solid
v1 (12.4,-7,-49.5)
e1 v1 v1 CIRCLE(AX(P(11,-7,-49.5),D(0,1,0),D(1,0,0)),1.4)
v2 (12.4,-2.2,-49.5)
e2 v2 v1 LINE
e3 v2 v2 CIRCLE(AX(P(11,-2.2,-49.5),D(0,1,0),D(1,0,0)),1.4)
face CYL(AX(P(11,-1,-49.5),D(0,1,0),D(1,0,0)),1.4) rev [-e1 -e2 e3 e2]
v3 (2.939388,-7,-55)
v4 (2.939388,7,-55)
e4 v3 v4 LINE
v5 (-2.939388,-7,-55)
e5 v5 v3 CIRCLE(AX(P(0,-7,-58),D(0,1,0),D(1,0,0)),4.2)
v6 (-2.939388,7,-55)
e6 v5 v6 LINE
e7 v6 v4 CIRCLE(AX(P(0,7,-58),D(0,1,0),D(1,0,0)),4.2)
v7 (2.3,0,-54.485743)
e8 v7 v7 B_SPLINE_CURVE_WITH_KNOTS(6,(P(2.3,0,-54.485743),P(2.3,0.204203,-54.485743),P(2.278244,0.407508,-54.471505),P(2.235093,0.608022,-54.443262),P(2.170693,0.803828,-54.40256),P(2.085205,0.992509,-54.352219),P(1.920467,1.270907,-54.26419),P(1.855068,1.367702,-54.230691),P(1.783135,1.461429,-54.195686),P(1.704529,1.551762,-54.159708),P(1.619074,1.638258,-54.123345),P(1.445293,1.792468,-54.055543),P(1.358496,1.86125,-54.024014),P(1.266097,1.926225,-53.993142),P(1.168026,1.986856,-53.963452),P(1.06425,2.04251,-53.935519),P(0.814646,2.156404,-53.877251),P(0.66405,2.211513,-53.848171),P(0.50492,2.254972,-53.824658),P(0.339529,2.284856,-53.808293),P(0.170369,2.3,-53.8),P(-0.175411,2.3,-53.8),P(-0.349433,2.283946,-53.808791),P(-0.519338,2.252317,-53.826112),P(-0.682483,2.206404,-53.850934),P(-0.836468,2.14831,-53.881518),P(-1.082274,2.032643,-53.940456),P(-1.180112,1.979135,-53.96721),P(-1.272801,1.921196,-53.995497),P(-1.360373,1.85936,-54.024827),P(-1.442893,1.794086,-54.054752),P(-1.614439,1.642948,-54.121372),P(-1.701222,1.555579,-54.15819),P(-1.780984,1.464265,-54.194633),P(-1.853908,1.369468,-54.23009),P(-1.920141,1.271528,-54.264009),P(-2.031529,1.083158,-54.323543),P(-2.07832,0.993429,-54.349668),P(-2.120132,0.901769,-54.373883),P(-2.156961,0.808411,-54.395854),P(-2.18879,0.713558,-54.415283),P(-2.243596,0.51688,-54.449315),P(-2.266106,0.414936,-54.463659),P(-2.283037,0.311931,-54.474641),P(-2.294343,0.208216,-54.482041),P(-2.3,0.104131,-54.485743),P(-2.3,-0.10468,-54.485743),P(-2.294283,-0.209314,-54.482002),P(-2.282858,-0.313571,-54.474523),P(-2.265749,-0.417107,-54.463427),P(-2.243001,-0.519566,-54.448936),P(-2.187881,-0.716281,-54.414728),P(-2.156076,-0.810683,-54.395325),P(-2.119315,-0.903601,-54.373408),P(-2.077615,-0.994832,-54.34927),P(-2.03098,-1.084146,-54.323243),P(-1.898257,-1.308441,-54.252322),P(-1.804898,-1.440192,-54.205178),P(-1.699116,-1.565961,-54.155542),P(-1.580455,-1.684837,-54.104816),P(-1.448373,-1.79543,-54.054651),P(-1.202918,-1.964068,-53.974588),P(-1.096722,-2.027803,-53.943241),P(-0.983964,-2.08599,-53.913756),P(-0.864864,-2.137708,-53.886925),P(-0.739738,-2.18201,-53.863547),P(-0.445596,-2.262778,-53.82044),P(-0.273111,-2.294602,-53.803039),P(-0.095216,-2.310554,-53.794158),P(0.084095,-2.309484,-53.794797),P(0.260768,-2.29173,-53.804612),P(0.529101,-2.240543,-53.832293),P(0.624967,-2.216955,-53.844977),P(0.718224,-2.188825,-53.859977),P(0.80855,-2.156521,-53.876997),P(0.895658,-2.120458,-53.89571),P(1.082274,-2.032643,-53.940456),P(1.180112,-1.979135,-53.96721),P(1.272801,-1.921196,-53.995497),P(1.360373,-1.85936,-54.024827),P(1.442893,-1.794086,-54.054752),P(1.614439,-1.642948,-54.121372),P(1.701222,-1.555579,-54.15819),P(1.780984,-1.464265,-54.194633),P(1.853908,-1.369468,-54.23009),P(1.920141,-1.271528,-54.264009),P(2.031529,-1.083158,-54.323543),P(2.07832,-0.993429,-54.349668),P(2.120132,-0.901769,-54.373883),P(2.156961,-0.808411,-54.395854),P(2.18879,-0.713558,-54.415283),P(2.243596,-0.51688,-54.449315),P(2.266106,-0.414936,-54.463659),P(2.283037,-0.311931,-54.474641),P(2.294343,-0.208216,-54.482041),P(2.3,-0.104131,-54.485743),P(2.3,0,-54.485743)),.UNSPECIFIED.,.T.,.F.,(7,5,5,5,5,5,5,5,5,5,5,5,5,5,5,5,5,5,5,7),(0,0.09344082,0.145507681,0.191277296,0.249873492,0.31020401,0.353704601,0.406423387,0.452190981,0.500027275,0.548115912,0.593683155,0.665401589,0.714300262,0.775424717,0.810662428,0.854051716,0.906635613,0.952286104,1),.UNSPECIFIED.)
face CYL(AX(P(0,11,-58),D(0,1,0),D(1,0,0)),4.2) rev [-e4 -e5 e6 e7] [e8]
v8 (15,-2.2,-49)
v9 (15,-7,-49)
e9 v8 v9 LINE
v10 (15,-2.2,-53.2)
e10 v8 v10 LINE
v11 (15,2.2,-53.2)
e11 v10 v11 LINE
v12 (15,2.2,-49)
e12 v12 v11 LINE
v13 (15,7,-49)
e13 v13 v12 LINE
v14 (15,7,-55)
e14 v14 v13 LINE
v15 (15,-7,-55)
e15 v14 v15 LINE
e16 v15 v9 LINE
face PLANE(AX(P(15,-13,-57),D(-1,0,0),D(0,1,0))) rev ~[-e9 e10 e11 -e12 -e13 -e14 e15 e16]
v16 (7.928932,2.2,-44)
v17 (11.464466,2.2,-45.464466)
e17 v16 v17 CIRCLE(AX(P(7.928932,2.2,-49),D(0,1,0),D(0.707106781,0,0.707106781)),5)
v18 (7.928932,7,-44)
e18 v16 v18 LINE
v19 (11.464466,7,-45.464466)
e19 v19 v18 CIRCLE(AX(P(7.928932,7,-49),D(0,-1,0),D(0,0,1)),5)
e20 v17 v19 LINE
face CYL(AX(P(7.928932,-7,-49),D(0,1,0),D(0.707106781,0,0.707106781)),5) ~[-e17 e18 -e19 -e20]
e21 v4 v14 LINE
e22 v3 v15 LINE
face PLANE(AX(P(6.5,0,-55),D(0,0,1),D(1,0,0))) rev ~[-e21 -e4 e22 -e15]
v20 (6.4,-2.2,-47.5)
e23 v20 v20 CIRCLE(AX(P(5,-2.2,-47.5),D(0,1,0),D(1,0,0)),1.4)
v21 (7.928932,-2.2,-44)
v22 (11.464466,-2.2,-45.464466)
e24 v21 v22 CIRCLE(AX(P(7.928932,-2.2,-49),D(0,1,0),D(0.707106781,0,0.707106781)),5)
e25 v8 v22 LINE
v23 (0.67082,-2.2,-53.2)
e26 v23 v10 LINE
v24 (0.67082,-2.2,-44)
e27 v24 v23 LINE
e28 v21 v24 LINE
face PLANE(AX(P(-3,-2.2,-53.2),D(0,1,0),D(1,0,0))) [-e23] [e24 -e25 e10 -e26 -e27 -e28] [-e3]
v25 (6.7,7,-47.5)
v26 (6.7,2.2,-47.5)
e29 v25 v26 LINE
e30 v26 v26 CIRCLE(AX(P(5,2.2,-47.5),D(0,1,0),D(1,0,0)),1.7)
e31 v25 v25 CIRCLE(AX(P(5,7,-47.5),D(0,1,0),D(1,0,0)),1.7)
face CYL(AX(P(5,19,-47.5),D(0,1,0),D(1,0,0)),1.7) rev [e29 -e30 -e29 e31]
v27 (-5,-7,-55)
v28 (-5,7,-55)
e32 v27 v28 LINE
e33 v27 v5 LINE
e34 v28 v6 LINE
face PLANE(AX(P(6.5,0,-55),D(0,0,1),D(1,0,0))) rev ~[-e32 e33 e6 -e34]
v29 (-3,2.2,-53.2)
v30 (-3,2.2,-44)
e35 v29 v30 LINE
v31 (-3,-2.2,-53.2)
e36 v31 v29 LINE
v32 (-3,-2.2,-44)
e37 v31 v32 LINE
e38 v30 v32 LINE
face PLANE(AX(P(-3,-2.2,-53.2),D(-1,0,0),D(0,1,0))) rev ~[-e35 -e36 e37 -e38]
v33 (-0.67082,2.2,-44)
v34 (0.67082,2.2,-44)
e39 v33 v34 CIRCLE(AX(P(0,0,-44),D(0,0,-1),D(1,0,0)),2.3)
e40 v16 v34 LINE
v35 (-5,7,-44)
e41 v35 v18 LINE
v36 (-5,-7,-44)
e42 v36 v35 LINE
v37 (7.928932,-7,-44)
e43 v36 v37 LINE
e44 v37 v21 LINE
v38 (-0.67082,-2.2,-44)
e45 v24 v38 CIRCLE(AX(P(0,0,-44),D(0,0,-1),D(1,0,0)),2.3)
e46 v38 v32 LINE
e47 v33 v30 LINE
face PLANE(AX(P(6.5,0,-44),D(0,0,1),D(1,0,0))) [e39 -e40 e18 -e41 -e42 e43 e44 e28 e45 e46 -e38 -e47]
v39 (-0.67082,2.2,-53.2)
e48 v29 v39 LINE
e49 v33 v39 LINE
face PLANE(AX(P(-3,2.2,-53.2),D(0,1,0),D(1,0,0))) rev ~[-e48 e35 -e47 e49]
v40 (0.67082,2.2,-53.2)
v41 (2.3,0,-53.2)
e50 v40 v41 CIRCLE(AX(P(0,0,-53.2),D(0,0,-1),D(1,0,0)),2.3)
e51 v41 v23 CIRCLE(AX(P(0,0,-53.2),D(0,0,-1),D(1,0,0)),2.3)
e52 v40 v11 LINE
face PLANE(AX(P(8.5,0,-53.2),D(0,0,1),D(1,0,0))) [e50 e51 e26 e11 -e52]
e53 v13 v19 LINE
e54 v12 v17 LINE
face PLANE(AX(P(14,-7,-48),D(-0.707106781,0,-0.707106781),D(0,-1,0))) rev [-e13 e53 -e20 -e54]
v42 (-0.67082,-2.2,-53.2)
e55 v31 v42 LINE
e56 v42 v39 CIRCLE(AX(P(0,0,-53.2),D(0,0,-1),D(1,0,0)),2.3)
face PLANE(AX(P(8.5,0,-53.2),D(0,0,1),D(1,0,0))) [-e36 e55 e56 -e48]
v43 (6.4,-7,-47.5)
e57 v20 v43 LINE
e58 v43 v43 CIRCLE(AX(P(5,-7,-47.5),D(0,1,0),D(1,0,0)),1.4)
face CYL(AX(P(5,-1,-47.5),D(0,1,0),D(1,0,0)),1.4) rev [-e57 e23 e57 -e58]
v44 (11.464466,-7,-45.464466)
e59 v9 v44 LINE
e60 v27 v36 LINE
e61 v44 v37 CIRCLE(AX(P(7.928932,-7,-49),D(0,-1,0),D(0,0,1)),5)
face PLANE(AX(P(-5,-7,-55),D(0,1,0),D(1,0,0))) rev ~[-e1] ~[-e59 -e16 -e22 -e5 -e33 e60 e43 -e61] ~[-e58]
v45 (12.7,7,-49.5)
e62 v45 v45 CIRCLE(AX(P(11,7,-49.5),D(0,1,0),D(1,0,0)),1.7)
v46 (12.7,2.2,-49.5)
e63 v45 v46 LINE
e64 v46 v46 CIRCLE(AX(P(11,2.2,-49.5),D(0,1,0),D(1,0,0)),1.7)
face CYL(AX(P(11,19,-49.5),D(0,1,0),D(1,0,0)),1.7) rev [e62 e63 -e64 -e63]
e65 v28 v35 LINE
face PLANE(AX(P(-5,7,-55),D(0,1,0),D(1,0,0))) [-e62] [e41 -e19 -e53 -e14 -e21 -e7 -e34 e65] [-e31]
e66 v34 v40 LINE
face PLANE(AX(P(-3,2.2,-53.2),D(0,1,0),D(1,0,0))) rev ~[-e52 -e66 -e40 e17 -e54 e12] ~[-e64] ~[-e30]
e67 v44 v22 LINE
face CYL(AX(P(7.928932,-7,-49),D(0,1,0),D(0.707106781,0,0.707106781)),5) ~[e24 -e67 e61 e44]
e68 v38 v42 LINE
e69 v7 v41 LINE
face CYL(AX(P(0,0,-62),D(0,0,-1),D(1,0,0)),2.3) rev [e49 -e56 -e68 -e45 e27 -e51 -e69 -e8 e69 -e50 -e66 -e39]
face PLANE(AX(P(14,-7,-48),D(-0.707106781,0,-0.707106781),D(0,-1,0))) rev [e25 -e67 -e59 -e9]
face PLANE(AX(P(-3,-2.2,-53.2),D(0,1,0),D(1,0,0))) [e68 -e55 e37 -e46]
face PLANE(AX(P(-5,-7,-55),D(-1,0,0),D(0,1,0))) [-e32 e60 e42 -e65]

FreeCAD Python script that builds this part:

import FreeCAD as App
import Part
import Sketcher
from FreeCAD import Vector
Q = App.Units.Quantity


def edges_at(feature, points):
    """Names of the edges that pass closest to the given points."""
    edges = feature.Shape.Edges
    near = lambda p: min(range(len(edges)), key=lambda i: edges[i].distToShape(Part.Vertex(*p))[0])
    return sorted({f"Edge{near(p) + 1}" for p in points})

doc = App.newDocument("Part")
body = doc.addObject("PartDesign::Body", "Body")

sketch1 = body.newObject("Sketcher::SketchObject", "Sketch")
sketch1.AttachmentSupport = (doc.getObject("XY_Plane"), [""])
sketch1.MapMode = "FlatFace"
sketch1.AttachmentOffset = App.Placement(Vector(0, 0, -56), App.Rotation())
sketch1.addGeometry(Part.Circle(Vector(0, 0, 0), Vector(0, 0, 1), 2.3), False)
sketch1.addConstraint([
    Sketcher.Constraint("Coincident", 0, 3, -1, 1),
    Sketcher.Constraint("Diameter", 0, Q("4.6 mm")),
])
pad1 = body.newObject("PartDesign::Pad", "Pad")
pad1.Profile = sketch1
pad1.Length = 62
body2 = doc.addObject("PartDesign::Body", "Body001")

sketch2 = body2.newObject("Sketcher::SketchObject", "Sketch001")
sketch2.AttachmentSupport = (doc.getObject("XY_Plane001"), [""])
sketch2.MapMode = "FlatFace"
sketch2.addGeometry(Part.Circle(Vector(0, 0, 0), Vector(0, 0, 1), 4.2), False)
sketch2.addConstraint([
    Sketcher.Constraint("Coincident", 0, 3, -1, 1),
    Sketcher.Constraint("Diameter", 0, Q("8.4 mm")),
])
pad2 = body2.newObject("PartDesign::Pad", "Pad001")
pad2.Profile = sketch2
pad2.Length = 24
body3 = doc.addObject("PartDesign::Body", "Body002")
doc.recompute()

body2.Placement = App.Placement(Vector(0, 0, 0), App.Rotation(Vector(1, 0, 0), 90))
boolean = body3.newObject("PartDesign::Boolean", "Boolean")
boolean.Type = "Fuse"
boolean.addObjects([body2])
body4 = doc.addObject("PartDesign::Body", "Body003")
doc.recompute()

body3.Placement = App.Placement(Vector(0, 11, -52), App.Rotation(Vector(0, 0, 1), 0))
boolean2 = body4.newObject("PartDesign::Boolean", "Boolean001")
boolean2.Type = "Fuse"
boolean2.addObjects([body3])
body5 = doc.addObject("PartDesign::Body", "Body004")

sketch3 = body5.newObject("Sketcher::SketchObject", "Sketch002")
sketch3.AttachmentSupport = (doc.getObject("XY_Plane004"), [""])
sketch3.MapMode = "FlatFace"
sketch3.AttachmentOffset = App.Placement(Vector(0, 0, -47.2), App.Rotation())
sketch3.addGeometry([
    Part.LineSegment(Vector(-3, 2.2, 0), Vector(-3, -2.2, 0)),
    Part.LineSegment(Vector(-3, -2.2, 0), Vector(20, -2.2, 0)),
    Part.LineSegment(Vector(20, -2.2, 0), Vector(20, 2.2, 0)),
    Part.LineSegment(Vector(20, 2.2, 0), Vector(-3, 2.2, 0)),
], False)
sketch3.addConstraint([
    Sketcher.Constraint("Coincident", 0, 2, 1, 1),
    Sketcher.Constraint("Coincident", 1, 2, 2, 1),
    Sketcher.Constraint("Coincident", 2, 2, 3, 1),
    Sketcher.Constraint("Coincident", 3, 2, 0, 1),
    Sketcher.Constraint("Vertical", 0),
    Sketcher.Constraint("Horizontal", 1),
    Sketcher.Constraint("Vertical", 2),
    Sketcher.Constraint("Horizontal", 3),
    Sketcher.Constraint("DistanceX", 1, 1, 1, 2, Q("23 mm")),
    Sketcher.Constraint("DistanceY", 0, 2, 0, 1, Q("4.4 mm")),
    Sketcher.Constraint("DistanceX", 0, 2, -1, 1, Q("3 mm")),
    Sketcher.Constraint("DistanceY", 0, 2, -1, 1, Q("2.2 mm")),
])
pad3 = body5.newObject("PartDesign::Pad", "Pad002")
pad3.Profile = sketch3
pad3.Length = 13
body6 = doc.addObject("PartDesign::Body", "Body005")

sketch4 = body6.newObject("Sketcher::SketchObject", "Sketch003")
sketch4.AttachmentSupport = (doc.getObject("XY_Plane005"), [""])
sketch4.MapMode = "FlatFace"
sketch4.addGeometry(Part.Circle(Vector(0, 0, 0), Vector(0, 0, 1), 1.7), False)
sketch4.addConstraint([
    Sketcher.Constraint("Coincident", 0, 3, -1, 1),
    Sketcher.Constraint("Diameter", 0, Q("3.4 mm")),
])
pad4 = body6.newObject("PartDesign::Pad", "Pad003")
pad4.Profile = sketch4
pad4.Length = 20
body7 = doc.addObject("PartDesign::Body", "Body006")
doc.recompute()

body6.Placement = App.Placement(Vector(0, 0, 0), App.Rotation(Vector(1, 0, 0), 90))
boolean3 = body7.newObject("PartDesign::Boolean", "Boolean002")
boolean3.Type = "Fuse"
boolean3.addObjects([body6])
body8 = doc.addObject("PartDesign::Body", "Body007")
doc.recompute()

body7.Placement = App.Placement(Vector(11, 19, -43.5), App.Rotation(Vector(0, 0, 1), 0))
boolean4 = body8.newObject("PartDesign::Boolean", "Boolean003")
boolean4.Type = "Fuse"
boolean4.addObjects([body7])
body9 = doc.addObject("PartDesign::Body", "Body008")

sketch5 = body9.newObject("Sketcher::SketchObject", "Sketch004")
sketch5.AttachmentSupport = (doc.getObject("XY_Plane008"), [""])
sketch5.MapMode = "FlatFace"
sketch5.addGeometry(Part.Circle(Vector(0, 0, 0), Vector(0, 0, 1), 1.7), False)
sketch5.addConstraint([
    Sketcher.Constraint("Coincident", 0, 3, -1, 1),
    Sketcher.Constraint("Diameter", 0, Q("3.4 mm")),
])
pad5 = body9.newObject("PartDesign::Pad", "Pad004")
pad5.Profile = sketch5
pad5.Length = 20
body10 = doc.addObject("PartDesign::Body", "Body009")
doc.recompute()

body9.Placement = App.Placement(Vector(0, 0, 0), App.Rotation(Vector(1, 0, 0), 90))
boolean5 = body10.newObject("PartDesign::Boolean", "Boolean004")
boolean5.Type = "Fuse"
boolean5.addObjects([body9])
body11 = doc.addObject("PartDesign::Body", "Body010")
doc.recompute()

body10.Placement = App.Placement(Vector(5, 19, -41.5), App.Rotation(Vector(0, 0, 1), 0))
boolean6 = body11.newObject("PartDesign::Boolean", "Boolean005")
boolean6.Type = "Fuse"
boolean6.addObjects([body10])
body12 = doc.addObject("PartDesign::Body", "Body011")

sketch6 = body12.newObject("Sketcher::SketchObject", "Sketch005")
sketch6.AttachmentSupport = (doc.getObject("XY_Plane011"), [""])
sketch6.MapMode = "FlatFace"
sketch6.addGeometry(Part.Circle(Vector(0, 0, 0), Vector(0, 0, 1), 1.4), False)
sketch6.addConstraint([
    Sketcher.Constraint("Coincident", 0, 3, -1, 1),
    Sketcher.Constraint("Diameter", 0, Q("2.8 mm")),
])
pad6 = body12.newObject("PartDesign::Pad", "Pad005")
pad6.Profile = sketch6
pad6.Length = 20
body13 = doc.addObject("PartDesign::Body", "Body012")
doc.recompute()

body12.Placement = App.Placement(Vector(0, 0, 0), App.Rotation(Vector(1, 0, 0), 90))
boolean7 = body13.newObject("PartDesign::Boolean", "Boolean006")
boolean7.Type = "Fuse"
boolean7.addObjects([body12])
body14 = doc.addObject("PartDesign::Body", "Body013")
doc.recompute()

body13.Placement = App.Placement(Vector(5, -1, -41.5), App.Rotation(Vector(0, 0, 1), 0))
boolean8 = body14.newObject("PartDesign::Boolean", "Boolean007")
boolean8.Type = "Fuse"
boolean8.addObjects([body13])
body15 = doc.addObject("PartDesign::Body", "Body014")

sketch7 = body15.newObject("Sketcher::SketchObject", "Sketch006")
sketch7.AttachmentSupport = (doc.getObject("XY_Plane014"), [""])
sketch7.MapMode = "FlatFace"
sketch7.addGeometry(Part.Circle(Vector(0, 0, 0), Vector(0, 0, 1), 1.4), False)
sketch7.addConstraint([
    Sketcher.Constraint("Coincident", 0, 3, -1, 1),
    Sketcher.Constraint("Diameter", 0, Q("2.8 mm")),
])
pad7 = body15.newObject("PartDesign::Pad", "Pad006")
pad7.Profile = sketch7
pad7.Length = 20
body16 = doc.addObject("PartDesign::Body", "Body015")
doc.recompute()

body15.Placement = App.Placement(Vector(0, 0, 0), App.Rotation(Vector(1, 0, 0), 90))
boolean9 = body16.newObject("PartDesign::Boolean", "Boolean008")
boolean9.Type = "Fuse"
boolean9.addObjects([body15])
body17 = doc.addObject("PartDesign::Body", "Body016")
body17.AllowCompound = True
doc.recompute()

body16.Placement = App.Placement(Vector(11, -1, -43.5), App.Rotation(Vector(0, 0, 1), 0))
boolean10 = body17.newObject("PartDesign::Boolean", "Boolean009")
boolean10.Type = "Fuse"
boolean10.addObjects([body16])
doc.recompute()

boolean11 = body17.newObject("PartDesign::Boolean", "Boolean010")
boolean11.Type = "Fuse"
boolean11.addObjects([body8])
doc.recompute()

boolean12 = body17.newObject("PartDesign::Boolean", "Boolean011")
boolean12.Type = "Fuse"
boolean12.addObjects([body11])
doc.recompute()

boolean13 = body17.newObject("PartDesign::Boolean", "Boolean012")
boolean13.Type = "Fuse"
boolean13.addObjects([body14])
body18 = doc.addObject("PartDesign::Body", "Body017")

sketch8 = body18.newObject("Sketcher::SketchObject", "Sketch007")
sketch8.AttachmentSupport = (doc.getObject("XY_Plane017"), [""])
sketch8.MapMode = "FlatFace"
sketch8.AttachmentOffset = App.Placement(Vector(0, 0, -44), App.Rotation())
sketch8.addGeometry([
    Part.LineSegment(Vector(15, 14, 0), Vector(15, -13, 0)),
    Part.LineSegment(Vector(15, -13, 0), Vector(25, -13, 0)),
    Part.LineSegment(Vector(25, -13, 0), Vector(25, 14, 0)),
    Part.LineSegment(Vector(25, 14, 0), Vector(15, 14, 0)),
], False)
sketch8.addConstraint([
    Sketcher.Constraint("Coincident", 0, 2, 1, 1),
    Sketcher.Constraint("Coincident", 1, 2, 2, 1),
    Sketcher.Constraint("Coincident", 2, 2, 3, 1),
    Sketcher.Constraint("Coincident", 3, 2, 0, 1),
    Sketcher.Constraint("Vertical", 0),
    Sketcher.Constraint("Horizontal", 1),
    Sketcher.Constraint("Vertical", 2),
    Sketcher.Constraint("Horizontal", 3),
    Sketcher.Constraint("DistanceX", 1, 1, 1, 2, Q("10 mm")),
    Sketcher.Constraint("DistanceY", 0, 2, 0, 1, Q("27 mm")),
    Sketcher.Constraint("DistanceX", -1, 1, 0, 2, Q("15 mm")),
    Sketcher.Constraint("DistanceY", 0, 2, -1, 1, Q("13 mm")),
])
pad8 = body18.newObject("PartDesign::Pad", "Pad007")
pad8.Profile = sketch8
pad8.Length = 10
body19 = doc.addObject("PartDesign::Body", "Body018")

sketch9 = body19.newObject("Sketcher::SketchObject", "Sketch008")
sketch9.AttachmentSupport = (doc.getObject("XY_Plane018"), [""])
sketch9.MapMode = "FlatFace"
sketch9.AttachmentOffset = App.Placement(Vector(0, 0, -42), App.Rotation())
sketch9.addGeometry([
    Part.LineSegment(Vector(-5, 7, 0), Vector(-5, -7, 0)),
    Part.LineSegment(Vector(-5, -7, 0), Vector(18, -7, 0)),
    Part.LineSegment(Vector(18, -7, 0), Vector(18, 7, 0)),
    Part.LineSegment(Vector(18, 7, 0), Vector(-5, 7, 0)),
], False)
sketch9.addConstraint([
    Sketcher.Constraint("Coincident", 0, 2, 1, 1),
    Sketcher.Constraint("Coincident", 1, 2, 2, 1),
    Sketcher.Constraint("Coincident", 2, 2, 3, 1),
    Sketcher.Constraint("Coincident", 3, 2, 0, 1),
    Sketcher.Constraint("Vertical", 0),
    Sketcher.Constraint("Horizontal", 1),
    Sketcher.Constraint("Vertical", 2),
    Sketcher.Constraint("Horizontal", 3),
    Sketcher.Constraint("DistanceX", 1, 1, 1, 2, Q("23 mm")),
    Sketcher.Constraint("DistanceY", 0, 2, 0, 1, Q("14 mm")),
    Sketcher.Constraint("DistanceX", 0, 2, -1, 1, Q("5 mm")),
    Sketcher.Constraint("DistanceY", 0, 2, -1, 1, Q("7 mm")),
])
pad9 = body19.newObject("PartDesign::Pad", "Pad008")
pad9.Profile = sketch9
pad9.Length = 11
doc.recompute()

chamfer = body19.newObject("PartDesign::Chamfer", "Chamfer")
chamfer.Base = (pad9, edges_at(pad9, [(18, 0, -31)]))
chamfer.Size = 8
doc.recompute()

fillet = body19.newObject("PartDesign::Fillet", "Fillet")
fillet.Base = (chamfer, edges_at(chamfer, [(10, 0, -31)]))
fillet.Radius = 5
doc.recompute()

boolean14 = body19.newObject("PartDesign::Boolean", "Boolean013")
boolean14.Type = "Cut"
boolean14.addObjects([body18])
body20 = doc.addObject("PartDesign::Body", "Body019")
doc.recompute()

body19.Placement = App.Placement(Vector(0, 0, -7), App.Rotation(Vector(0, 0, 1), 0))
boolean15 = body20.newObject("PartDesign::Boolean", "Boolean014")
boolean15.Type = "Fuse"
boolean15.addObjects([body19])
doc.recompute()

boolean16 = body20.newObject("PartDesign::Boolean", "Boolean015")
boolean16.Type = "Cut"
boolean16.addObjects([body17])
doc.recompute()

boolean17 = body20.newObject("PartDesign::Boolean", "Boolean016")
boolean17.Type = "Cut"
boolean17.addObjects([body5])
doc.recompute()

boolean18 = body20.newObject("PartDesign::Boolean", "Boolean017")
boolean18.Type = "Cut"
boolean18.addObjects([body4])
doc.recompute()

boolean19 = body20.newObject("PartDesign::Boolean", "Boolean018")
boolean19.Type = "Cut"
boolean19.addObjects([body])
body21 = doc.addObject("PartDesign::Body", "Body020")
doc.recompute()

body20.Placement = App.Placement(Vector(0, 0, -6), App.Rotation(Vector(0, 0, 1), 0))
boolean20 = body21.newObject("PartDesign::Boolean", "Boolean019")
boolean20.Type = "Fuse"
boolean20.addObjects([body20])

doc.recompute()
